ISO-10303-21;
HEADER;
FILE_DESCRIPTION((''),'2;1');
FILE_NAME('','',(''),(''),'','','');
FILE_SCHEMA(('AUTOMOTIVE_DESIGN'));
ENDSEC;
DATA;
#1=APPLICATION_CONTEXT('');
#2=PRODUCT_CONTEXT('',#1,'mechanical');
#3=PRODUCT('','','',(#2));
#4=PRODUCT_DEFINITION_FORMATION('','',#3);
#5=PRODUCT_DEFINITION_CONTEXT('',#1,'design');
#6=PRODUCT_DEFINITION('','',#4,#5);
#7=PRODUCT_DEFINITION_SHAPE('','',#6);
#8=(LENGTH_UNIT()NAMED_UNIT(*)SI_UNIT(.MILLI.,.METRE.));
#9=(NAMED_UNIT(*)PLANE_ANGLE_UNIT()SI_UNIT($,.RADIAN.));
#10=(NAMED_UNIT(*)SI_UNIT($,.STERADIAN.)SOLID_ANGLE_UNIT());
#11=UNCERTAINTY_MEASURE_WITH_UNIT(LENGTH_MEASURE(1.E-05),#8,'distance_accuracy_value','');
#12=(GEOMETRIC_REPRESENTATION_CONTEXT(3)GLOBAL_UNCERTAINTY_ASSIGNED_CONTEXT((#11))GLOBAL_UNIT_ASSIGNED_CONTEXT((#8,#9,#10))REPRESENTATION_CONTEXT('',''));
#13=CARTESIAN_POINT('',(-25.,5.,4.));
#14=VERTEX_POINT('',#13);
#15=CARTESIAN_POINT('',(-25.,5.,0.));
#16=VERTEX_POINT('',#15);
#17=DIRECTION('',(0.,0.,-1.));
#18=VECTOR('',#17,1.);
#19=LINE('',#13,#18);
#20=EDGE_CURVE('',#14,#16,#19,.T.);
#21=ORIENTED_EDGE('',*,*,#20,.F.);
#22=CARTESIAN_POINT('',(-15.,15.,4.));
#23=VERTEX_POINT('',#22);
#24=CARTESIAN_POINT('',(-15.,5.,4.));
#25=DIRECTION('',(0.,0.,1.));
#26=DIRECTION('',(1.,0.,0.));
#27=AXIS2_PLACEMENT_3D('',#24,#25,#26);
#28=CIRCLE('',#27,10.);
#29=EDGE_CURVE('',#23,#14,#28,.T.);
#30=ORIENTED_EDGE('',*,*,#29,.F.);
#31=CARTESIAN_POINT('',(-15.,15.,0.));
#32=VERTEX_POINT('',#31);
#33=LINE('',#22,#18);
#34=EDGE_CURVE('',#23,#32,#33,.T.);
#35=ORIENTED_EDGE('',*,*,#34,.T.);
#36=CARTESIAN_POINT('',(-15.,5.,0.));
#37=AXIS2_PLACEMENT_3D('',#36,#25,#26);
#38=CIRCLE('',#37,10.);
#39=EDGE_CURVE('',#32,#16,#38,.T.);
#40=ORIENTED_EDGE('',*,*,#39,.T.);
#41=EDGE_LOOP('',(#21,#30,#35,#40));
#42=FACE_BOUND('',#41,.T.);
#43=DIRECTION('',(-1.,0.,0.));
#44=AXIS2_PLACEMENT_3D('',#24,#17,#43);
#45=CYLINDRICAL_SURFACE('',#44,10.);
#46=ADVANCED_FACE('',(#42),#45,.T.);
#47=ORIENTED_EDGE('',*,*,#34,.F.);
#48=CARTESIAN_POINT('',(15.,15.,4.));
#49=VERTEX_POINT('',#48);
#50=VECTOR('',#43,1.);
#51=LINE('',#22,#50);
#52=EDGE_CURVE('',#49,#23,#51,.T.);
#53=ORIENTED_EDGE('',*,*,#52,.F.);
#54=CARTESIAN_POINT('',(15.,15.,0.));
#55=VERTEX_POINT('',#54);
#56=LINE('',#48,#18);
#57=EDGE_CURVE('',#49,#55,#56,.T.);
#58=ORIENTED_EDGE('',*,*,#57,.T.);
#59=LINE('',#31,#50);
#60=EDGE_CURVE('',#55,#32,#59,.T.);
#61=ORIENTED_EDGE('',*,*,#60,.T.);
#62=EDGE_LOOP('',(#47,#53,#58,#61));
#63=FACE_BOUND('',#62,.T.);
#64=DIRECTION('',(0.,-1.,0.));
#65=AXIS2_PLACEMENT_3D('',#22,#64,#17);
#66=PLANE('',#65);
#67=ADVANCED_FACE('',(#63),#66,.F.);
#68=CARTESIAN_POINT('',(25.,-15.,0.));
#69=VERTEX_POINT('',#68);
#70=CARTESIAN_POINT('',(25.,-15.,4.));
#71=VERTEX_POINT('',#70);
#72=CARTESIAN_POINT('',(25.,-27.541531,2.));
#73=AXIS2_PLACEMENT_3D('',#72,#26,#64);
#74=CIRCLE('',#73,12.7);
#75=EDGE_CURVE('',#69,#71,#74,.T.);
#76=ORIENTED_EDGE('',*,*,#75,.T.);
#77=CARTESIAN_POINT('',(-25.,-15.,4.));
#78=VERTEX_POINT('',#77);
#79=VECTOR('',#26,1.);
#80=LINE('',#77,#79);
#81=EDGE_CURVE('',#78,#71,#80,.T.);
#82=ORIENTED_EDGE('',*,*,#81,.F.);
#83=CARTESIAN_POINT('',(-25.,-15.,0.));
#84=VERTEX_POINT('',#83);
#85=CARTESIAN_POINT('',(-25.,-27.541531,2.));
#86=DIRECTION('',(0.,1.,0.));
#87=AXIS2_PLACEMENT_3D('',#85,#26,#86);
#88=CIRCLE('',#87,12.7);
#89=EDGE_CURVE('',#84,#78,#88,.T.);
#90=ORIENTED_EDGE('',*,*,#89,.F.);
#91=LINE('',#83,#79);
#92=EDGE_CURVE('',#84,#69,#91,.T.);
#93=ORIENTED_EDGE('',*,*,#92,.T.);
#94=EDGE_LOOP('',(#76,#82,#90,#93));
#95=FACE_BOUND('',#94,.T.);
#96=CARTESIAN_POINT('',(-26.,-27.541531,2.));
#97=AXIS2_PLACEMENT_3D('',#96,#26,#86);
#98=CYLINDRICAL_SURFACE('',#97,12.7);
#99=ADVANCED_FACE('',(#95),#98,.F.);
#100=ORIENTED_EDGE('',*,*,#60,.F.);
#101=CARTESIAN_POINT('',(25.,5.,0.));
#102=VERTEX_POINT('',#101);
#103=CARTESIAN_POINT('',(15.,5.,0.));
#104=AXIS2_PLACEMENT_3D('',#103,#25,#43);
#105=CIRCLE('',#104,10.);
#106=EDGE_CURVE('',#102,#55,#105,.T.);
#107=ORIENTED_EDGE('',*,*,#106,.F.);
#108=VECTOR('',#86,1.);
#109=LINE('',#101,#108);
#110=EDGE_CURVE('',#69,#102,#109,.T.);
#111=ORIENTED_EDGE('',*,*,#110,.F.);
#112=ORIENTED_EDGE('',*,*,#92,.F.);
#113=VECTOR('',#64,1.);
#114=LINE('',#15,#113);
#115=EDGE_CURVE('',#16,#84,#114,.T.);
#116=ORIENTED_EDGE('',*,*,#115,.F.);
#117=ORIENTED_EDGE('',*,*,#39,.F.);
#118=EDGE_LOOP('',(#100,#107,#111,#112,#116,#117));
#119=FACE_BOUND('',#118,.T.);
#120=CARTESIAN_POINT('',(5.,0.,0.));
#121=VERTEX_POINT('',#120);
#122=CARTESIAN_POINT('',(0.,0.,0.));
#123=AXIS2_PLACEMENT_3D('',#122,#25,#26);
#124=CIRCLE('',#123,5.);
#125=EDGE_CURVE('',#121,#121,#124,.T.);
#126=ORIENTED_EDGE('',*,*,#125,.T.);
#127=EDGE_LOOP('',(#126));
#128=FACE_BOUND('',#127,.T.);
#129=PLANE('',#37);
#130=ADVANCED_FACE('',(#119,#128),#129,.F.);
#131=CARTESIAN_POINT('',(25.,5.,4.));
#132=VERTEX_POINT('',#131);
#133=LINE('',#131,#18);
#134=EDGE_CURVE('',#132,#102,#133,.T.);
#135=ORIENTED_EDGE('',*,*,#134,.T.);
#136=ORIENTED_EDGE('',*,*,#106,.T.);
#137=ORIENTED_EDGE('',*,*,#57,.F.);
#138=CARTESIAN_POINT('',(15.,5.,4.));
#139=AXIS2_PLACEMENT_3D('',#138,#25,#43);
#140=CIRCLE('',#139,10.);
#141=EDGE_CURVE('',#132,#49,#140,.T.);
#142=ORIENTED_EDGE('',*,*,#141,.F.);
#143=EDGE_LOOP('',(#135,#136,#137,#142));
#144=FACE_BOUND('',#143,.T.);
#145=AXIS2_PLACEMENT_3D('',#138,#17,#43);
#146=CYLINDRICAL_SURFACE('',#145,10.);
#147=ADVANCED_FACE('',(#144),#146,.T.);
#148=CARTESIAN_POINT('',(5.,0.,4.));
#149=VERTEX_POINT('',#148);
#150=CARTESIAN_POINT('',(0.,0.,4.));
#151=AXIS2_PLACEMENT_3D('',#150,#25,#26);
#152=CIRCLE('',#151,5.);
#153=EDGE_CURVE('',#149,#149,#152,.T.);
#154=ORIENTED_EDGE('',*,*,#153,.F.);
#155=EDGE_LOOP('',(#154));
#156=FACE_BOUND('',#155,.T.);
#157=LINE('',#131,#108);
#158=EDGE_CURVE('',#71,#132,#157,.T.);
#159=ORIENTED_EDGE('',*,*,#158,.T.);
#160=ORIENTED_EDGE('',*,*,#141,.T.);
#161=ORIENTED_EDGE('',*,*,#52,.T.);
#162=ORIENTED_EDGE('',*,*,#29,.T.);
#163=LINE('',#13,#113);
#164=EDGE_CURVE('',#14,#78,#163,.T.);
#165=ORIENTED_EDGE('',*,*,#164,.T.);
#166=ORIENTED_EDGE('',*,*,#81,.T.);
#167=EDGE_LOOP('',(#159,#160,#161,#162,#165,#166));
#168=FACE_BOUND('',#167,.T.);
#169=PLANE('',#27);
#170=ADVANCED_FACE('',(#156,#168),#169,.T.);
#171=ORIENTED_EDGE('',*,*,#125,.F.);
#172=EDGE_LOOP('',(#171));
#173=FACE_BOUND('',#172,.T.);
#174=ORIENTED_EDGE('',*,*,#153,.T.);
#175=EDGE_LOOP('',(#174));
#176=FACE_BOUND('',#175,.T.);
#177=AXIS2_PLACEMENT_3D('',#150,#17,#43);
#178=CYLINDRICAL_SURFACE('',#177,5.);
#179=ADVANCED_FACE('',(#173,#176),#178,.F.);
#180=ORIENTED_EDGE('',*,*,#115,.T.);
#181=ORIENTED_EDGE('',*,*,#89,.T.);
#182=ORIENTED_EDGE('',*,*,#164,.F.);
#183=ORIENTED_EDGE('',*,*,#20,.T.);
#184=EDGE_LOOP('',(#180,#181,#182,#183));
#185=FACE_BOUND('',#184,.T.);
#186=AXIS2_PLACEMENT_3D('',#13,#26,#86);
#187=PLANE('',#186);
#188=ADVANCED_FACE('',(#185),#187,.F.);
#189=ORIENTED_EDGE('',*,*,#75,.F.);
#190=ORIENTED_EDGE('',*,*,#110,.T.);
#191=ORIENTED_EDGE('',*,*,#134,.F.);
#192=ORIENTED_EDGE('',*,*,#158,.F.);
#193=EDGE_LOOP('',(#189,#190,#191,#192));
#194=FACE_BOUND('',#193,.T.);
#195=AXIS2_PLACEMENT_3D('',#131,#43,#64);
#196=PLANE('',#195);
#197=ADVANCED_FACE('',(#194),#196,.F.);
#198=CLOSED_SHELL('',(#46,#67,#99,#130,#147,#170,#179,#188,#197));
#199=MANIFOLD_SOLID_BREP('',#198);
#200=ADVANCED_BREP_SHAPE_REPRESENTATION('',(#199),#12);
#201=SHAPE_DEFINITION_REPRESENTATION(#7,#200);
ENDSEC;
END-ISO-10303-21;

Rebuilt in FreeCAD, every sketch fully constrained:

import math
import FreeCAD as App
import Part
import Sketcher
Q = App.Units.Quantity

doc = App.newDocument("Part")
params = doc.addObject("Spreadsheet::Sheet", "Params")
for row, (alias, value) in enumerate([
    ("sketch1_diameter", "10 mm"),
    ("sketch1_radius", "10 mm"),
    ("sketch1_width", "30 mm"),
    ("sketch1_height", "20 mm"),
    ("pad1_length", "4 mm"),
    ("sketch2_radius", "12.7 mm"),
    ("sketch2_height", "4 mm"),
    ("pocket1_length", "51 mm"),
], start=1):
    params.set(f"A{row}", alias)
    params.set(f"B{row}", "=" + value)
    params.setAlias(f"B{row}", alias)

body = doc.addObject("PartDesign::Body", "Body")

sketch1 = body.newObject("Sketcher::SketchObject", "Sketch")
sketch1.AttachmentSupport = (doc.getObject("XY_Plane"), [""])
sketch1.MapMode = "FlatFace"
sketch1.addGeometry([
    Part.LineSegment(App.Vector(15, 15, 0), App.Vector(-15, 15, 0)),
    Part.ArcOfCircle(Part.Circle(App.Vector(-15, 5, 0), App.Vector(0, 0, 1), 10), math.radians(90), math.radians(180)),
    Part.LineSegment(App.Vector(-25, 5, 0), App.Vector(-25, -15, 0)),
    Part.LineSegment(App.Vector(-25, -15, 0), App.Vector(25, -15, 0)),
    Part.LineSegment(App.Vector(25, -15, 0), App.Vector(25, 5, 0)),
    Part.ArcOfCircle(Part.Circle(App.Vector(15, 5, 0), App.Vector(0, 0, 1), 10), math.radians(0), math.radians(90)),
    Part.Circle(App.Vector(0, 0, 0), App.Vector(0, 0, 1), 5),
], False)
sketch1.addConstraint([
    Sketcher.Constraint("Tangent", 0, 2, 1, 1),
    Sketcher.Constraint("Tangent", 1, 2, 2, 1),
    Sketcher.Constraint("Coincident", 2, 2, 3, 1),
    Sketcher.Constraint("Coincident", 3, 2, 4, 1),
    Sketcher.Constraint("Tangent", 4, 2, 5, 1),
    Sketcher.Constraint("Tangent", 5, 2, 0, 1),
    Sketcher.Constraint("Horizontal", 0),
    Sketcher.Constraint("Vertical", 2),
    Sketcher.Constraint("Horizontal", 3),
    Sketcher.Constraint("Vertical", 4),
    Sketcher.Constraint("Coincident", 6, 3, -1, 1),
    Sketcher.Constraint("Equal", 1, 5),
    Sketcher.Constraint("Diameter", 6, Q("10 mm")),
    Sketcher.Constraint("Radius", 1, Q("10 mm")),
    Sketcher.Constraint("DistanceX", 0, 2, 0, 1, Q("30 mm")),
    Sketcher.Constraint("DistanceY", 2, 2, 2, 1, Q("20 mm")),
    Sketcher.Constraint("DistanceX", 1, 3, -1, 1, Q("15 mm")),
    Sketcher.Constraint("DistanceY", -1, 1, 1, 3, Q("5 mm")),
])
sketch1.setExpression("Constraints[12]", "Params.sketch1_diameter")
sketch1.setExpression("Constraints[13]", "Params.sketch1_radius")
sketch1.setExpression("Constraints[14]", "Params.sketch1_width")
sketch1.setExpression("Constraints[15]", "Params.sketch1_height")
pad1 = body.newObject("PartDesign::Pad", "Pad")
pad1.Profile = sketch1
pad1.setExpression("Length", "Params.pad1_length")

sketch2 = body.newObject("Sketcher::SketchObject", "Sketch001")
sketch2.AttachmentSupport = (doc.getObject("YZ_Plane"), [""])
sketch2.MapMode = "FlatFace"
sketch2.AttachmentOffset = App.Placement(App.Vector(0, 0, 25), App.Rotation())
sketch2.addGeometry([
    Part.LineSegment(App.Vector(-15, 4, 0), App.Vector(-15, 0, 0)),
    Part.ArcOfCircle(Part.Circle(App.Vector(-27.541531, 2, 0), App.Vector(0, 0, 1), 12.7), math.radians(-9.060675), math.radians(9.060675)),
], False)
sketch2.addConstraint([
    Sketcher.Constraint("Coincident", 0, 1, 1, 2),
    Sketcher.Constraint("Coincident", 1, 1, 0, 2),
    Sketcher.Constraint("Vertical", 0),
    Sketcher.Constraint("PointOnObject", 1, 1, -1),
    Sketcher.Constraint("Radius", 1, Q("12.7 mm")),
    Sketcher.Constraint("DistanceY", 0, 2, 0, 1, Q("4 mm")),
    Sketcher.Constraint("DistanceX", 0, 1, -1, 1, Q("15 mm")),
])
sketch2.setExpression("Constraints[4]", "Params.sketch2_radius")
sketch2.setExpression("Constraints[5]", "Params.sketch2_height")
pocket1 = body.newObject("PartDesign::Pocket", "Pocket")
pocket1.Profile = sketch2
pocket1.setExpression("Length", "Params.pocket1_length")

doc.recompute()
